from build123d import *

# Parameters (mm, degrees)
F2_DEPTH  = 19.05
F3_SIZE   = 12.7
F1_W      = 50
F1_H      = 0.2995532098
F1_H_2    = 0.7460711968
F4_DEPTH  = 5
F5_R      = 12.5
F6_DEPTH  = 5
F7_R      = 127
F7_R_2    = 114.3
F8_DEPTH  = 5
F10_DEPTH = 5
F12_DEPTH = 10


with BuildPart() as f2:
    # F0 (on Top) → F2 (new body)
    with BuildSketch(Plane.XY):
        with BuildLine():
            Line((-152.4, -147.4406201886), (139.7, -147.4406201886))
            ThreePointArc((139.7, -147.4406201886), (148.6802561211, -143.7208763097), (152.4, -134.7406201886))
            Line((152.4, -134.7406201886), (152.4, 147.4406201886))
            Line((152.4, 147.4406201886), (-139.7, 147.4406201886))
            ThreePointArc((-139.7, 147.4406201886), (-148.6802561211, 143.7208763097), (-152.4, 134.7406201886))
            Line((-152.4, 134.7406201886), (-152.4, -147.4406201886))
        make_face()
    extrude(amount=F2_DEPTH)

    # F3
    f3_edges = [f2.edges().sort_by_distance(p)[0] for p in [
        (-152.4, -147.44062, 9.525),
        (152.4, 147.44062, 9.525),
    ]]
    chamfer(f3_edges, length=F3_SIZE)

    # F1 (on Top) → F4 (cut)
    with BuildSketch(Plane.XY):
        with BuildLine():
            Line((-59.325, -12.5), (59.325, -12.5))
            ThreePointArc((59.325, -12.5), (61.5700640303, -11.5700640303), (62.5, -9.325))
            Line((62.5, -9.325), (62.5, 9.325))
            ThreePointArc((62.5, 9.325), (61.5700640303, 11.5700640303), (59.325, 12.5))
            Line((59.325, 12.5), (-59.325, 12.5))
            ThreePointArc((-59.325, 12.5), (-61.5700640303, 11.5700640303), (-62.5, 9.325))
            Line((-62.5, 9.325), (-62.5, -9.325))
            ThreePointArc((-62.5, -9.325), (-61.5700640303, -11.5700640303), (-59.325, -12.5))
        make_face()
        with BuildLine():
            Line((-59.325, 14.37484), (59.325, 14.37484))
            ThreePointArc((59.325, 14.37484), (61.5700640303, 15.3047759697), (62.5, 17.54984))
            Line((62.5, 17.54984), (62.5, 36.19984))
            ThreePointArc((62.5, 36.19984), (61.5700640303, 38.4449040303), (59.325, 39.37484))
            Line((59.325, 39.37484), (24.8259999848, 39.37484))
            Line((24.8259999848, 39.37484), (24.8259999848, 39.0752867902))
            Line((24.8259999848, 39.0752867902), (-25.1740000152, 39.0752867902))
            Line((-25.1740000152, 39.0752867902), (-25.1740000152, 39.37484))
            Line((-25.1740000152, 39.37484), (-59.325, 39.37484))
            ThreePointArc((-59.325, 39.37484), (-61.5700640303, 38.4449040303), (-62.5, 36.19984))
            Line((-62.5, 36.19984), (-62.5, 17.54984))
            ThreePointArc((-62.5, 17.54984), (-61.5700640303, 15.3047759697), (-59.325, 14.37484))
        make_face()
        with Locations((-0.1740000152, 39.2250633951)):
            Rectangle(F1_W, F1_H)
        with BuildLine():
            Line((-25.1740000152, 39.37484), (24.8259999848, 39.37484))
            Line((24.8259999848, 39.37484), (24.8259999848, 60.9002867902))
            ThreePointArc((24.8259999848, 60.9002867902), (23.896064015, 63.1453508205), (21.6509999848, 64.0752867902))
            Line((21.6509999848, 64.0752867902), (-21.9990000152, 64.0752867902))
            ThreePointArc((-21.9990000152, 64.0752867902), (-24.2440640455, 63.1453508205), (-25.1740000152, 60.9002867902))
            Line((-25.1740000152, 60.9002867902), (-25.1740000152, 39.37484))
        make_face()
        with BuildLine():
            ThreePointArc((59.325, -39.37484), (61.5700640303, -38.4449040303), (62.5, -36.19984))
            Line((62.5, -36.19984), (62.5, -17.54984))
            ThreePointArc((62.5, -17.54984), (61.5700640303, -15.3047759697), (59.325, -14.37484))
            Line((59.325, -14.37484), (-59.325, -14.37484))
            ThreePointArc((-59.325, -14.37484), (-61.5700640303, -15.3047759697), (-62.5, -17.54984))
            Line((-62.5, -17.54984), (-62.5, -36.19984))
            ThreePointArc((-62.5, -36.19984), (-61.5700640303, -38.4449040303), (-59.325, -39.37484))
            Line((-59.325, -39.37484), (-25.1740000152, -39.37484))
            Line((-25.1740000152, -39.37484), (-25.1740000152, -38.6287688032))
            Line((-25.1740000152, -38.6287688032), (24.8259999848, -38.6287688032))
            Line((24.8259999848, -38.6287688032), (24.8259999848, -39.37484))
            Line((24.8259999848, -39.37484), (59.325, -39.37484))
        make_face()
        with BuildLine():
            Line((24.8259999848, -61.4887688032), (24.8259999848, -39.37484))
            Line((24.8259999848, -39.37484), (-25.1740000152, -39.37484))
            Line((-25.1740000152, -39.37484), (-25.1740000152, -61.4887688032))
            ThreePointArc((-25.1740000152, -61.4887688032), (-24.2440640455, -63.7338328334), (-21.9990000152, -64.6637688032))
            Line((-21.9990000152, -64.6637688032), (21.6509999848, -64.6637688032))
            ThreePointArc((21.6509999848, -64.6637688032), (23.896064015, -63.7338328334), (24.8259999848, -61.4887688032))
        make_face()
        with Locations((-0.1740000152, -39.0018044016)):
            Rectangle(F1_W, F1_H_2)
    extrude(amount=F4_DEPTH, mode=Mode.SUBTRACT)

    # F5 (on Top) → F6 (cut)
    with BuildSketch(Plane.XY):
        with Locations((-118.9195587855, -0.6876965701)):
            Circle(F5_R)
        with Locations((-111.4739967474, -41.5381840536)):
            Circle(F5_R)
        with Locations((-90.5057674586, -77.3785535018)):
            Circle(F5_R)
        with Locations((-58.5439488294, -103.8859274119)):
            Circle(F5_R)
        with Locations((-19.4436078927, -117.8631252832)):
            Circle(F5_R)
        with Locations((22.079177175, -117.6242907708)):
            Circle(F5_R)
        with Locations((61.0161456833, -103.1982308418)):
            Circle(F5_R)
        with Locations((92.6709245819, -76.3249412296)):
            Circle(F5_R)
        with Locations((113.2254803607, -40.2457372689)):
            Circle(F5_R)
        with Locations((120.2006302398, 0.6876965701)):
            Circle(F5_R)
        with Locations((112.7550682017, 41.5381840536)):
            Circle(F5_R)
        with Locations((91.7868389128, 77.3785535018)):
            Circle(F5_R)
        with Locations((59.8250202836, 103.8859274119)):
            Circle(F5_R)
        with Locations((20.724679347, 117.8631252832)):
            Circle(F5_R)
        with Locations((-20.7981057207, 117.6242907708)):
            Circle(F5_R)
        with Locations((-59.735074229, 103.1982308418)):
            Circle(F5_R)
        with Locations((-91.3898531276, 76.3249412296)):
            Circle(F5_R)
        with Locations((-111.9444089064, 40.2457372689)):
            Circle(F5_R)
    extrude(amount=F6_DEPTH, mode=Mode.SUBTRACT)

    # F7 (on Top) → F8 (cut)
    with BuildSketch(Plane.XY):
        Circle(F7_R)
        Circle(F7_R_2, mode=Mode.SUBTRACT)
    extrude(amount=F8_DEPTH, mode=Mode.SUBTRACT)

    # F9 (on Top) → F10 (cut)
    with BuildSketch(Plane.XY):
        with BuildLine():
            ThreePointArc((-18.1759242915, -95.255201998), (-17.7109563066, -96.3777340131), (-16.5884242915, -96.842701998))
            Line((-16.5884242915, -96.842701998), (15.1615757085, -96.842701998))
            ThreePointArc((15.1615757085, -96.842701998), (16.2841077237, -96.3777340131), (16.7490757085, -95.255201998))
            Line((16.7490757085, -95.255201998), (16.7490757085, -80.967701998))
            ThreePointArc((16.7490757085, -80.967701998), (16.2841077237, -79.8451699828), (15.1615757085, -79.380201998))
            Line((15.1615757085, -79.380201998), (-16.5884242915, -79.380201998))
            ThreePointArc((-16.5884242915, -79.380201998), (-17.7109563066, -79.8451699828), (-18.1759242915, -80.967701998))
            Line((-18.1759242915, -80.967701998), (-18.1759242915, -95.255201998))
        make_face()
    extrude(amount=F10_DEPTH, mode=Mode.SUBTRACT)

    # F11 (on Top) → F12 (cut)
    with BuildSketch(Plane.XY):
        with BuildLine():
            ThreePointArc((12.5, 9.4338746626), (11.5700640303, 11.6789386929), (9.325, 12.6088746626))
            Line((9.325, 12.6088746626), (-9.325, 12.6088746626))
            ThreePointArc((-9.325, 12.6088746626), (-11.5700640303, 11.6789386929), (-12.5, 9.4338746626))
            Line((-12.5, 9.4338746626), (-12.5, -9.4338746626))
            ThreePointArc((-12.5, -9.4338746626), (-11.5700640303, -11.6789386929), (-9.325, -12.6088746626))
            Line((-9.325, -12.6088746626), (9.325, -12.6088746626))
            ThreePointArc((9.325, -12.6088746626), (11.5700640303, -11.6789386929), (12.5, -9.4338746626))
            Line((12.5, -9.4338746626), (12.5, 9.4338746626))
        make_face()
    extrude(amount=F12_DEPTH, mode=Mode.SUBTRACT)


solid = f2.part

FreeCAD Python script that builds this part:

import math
import FreeCAD as App
import Part
import Sketcher
Q = App.Units.Quantity


def edges_at(feature, points):
    """Names of the edges that pass closest to the given points."""
    edges = feature.Shape.Edges
    near = lambda p: min(range(len(edges)), key=lambda i: edges[i].distToShape(Part.Vertex(*p))[0])
    return sorted({f"Edge{near(p) + 1}" for p in points})

doc = App.newDocument("Part")
body = doc.addObject("PartDesign::Body", "Body")

sketch1 = body.newObject("Sketcher::SketchObject", "Sketch")
sketch1.AttachmentSupport = (doc.getObject("XY_Plane"), [""])
sketch1.MapMode = "FlatFace"
sketch1.addGeometry([
    Part.LineSegment(App.Vector(-152, -147, 0), App.Vector(140, -147, 0)),
    Part.ArcOfCircle(Part.Circle(App.Vector(140, -135, 0), App.Vector(0, 0, 1), 13), math.radians(-90), math.radians(0)),
    Part.LineSegment(App.Vector(152, -135, 0), App.Vector(152, 147, 0)),
    Part.LineSegment(App.Vector(152, 147, 0), App.Vector(-140, 147, 0)),
    Part.ArcOfCircle(Part.Circle(App.Vector(-140, 135, 0), App.Vector(0, 0, 1), 13), math.radians(90), math.radians(180)),
    Part.LineSegment(App.Vector(-152, 135, 0), App.Vector(-152, -147, 0)),
], False)
sketch1.addConstraint([
    Sketcher.Constraint("Tangent", 0, 2, 1, 1),
    Sketcher.Constraint("Tangent", 1, 2, 2, 1),
    Sketcher.Constraint("Coincident", 2, 2, 3, 1),
    Sketcher.Constraint("Tangent", 3, 2, 4, 1),
    Sketcher.Constraint("Tangent", 4, 2, 5, 1),
    Sketcher.Constraint("Coincident", 5, 2, 0, 1),
    Sketcher.Constraint("Horizontal", 0),
    Sketcher.Constraint("Vertical", 2),
    Sketcher.Constraint("Horizontal", 3),
    Sketcher.Constraint("Vertical", 5),
    Sketcher.Constraint("Equal", 1, 4),
    Sketcher.Constraint("Symmetric", 1, 3, 4, 3, -1, 1),
    Sketcher.Constraint("Radius", 1, Q("0.5 in")),
    Sketcher.Constraint("DistanceX", 0, 1, 0, 2, Q("11.5 in")),
    Sketcher.Constraint("DistanceY", 2, 1, 2, 2, 282.18124),
])
pad1 = body.newObject("PartDesign::Pad", "Pad")
pad1.Profile = sketch1
pad1.Length = Q("0.75 in")
doc.recompute()

chamfer = body.newObject("PartDesign::Chamfer", "Chamfer")
chamfer.Base = (pad1, edges_at(pad1, [(-152.4, -147.441, 9.525), (152.4, 147.441, 9.525)]))
chamfer.Size = Q("0.5 in")

sketch2 = body.newObject("Sketcher::SketchObject", "Sketch001")
sketch2.AttachmentSupport = (doc.getObject("XY_Plane"), [""])
sketch2.MapMode = "FlatFace"
sketch2.addGeometry([
    Part.LineSegment(App.Vector(-59.3, -12.5, 0), App.Vector(59.3, -12.5, 0)),
    Part.ArcOfCircle(Part.Circle(App.Vector(59.3, -9.3, 0), App.Vector(0, 0, 1), 3.2), math.radians(-90), math.radians(0)),
    Part.LineSegment(App.Vector(62.5, -9.3, 0), App.Vector(62.5, 9.3, 0)),
    Part.ArcOfCircle(Part.Circle(App.Vector(59.3, 9.3, 0), App.Vector(0, 0, 1), 3.2), math.radians(0), math.radians(90)),
    Part.LineSegment(App.Vector(59.3, 12.5, 0), App.Vector(-59.3, 12.5, 0)),
    Part.ArcOfCircle(Part.Circle(App.Vector(-59.3, 9.3, 0), App.Vector(0, 0, 1), 3.2), math.radians(90), math.radians(180)),
    Part.LineSegment(App.Vector(-62.5, 9.3, 0), App.Vector(-62.5, -9.3, 0)),
    Part.ArcOfCircle(Part.Circle(App.Vector(-59.3, -9.3, 0), App.Vector(0, 0, 1), 3.2), math.radians(180), math.radians(270)),
    Part.LineSegment(App.Vector(-59.3, 14.4, 0), App.Vector(59.3, 14.4, 0)),
    Part.ArcOfCircle(Part.Circle(App.Vector(59.3, 17.5, 0), App.Vector(0, 0, 1), 3.2), math.radians(-90), math.radians(0)),
    Part.LineSegment(App.Vector(62.5, 17.5, 0), App.Vector(62.5, 36.2, 0)),
    Part.ArcOfCircle(Part.Circle(App.Vector(59.3, 36.2, 0), App.Vector(0, 0, 1), 3.2), math.radians(0), math.radians(90)),
    Part.LineSegment(App.Vector(59.3, 39.4, 0), App.Vector(24.8, 39.4, 0)),
    Part.LineSegment(App.Vector(24.8, 39.4, 0), App.Vector(24.8, 60.9, 0)),
    Part.ArcOfCircle(Part.Circle(App.Vector(21.7, 60.9, 0), App.Vector(0, 0, 1), 3.2), math.radians(0), math.radians(90)),
    Part.LineSegment(App.Vector(21.7, 64.1, 0), App.Vector(-22, 64.1, 0)),
    Part.ArcOfCircle(Part.Circle(App.Vector(-22, 60.9, 0), App.Vector(0, 0, 1), 3.2), math.radians(90), math.radians(180)),
    Part.LineSegment(App.Vector(-25.2, 60.9, 0), App.Vector(-25.2, 39.4, 0)),
    Part.LineSegment(App.Vector(-25.2, 39.4, 0), App.Vector(-59.3, 39.4, 0)),
    Part.ArcOfCircle(Part.Circle(App.Vector(-59.3, 36.2, 0), App.Vector(0, 0, 1), 3.2), math.radians(90), math.radians(180)),
    Part.LineSegment(App.Vector(-62.5, 36.2, 0), App.Vector(-62.5, 17.5, 0)),
    Part.ArcOfCircle(Part.Circle(App.Vector(-59.3, 17.5, 0), App.Vector(0, 0, 1), 3.2), math.radians(180), math.radians(270)),
    Part.ArcOfCircle(Part.Circle(App.Vector(59.3, -36.2, 0), App.Vector(0, 0, 1), 3.2), math.radians(-90), math.radians(0)),
    Part.LineSegment(App.Vector(62.5, -36.2, 0), App.Vector(62.5, -17.5, 0)),
    Part.ArcOfCircle(Part.Circle(App.Vector(59.3, -17.5, 0), App.Vector(0, 0, 1), 3.2), math.radians(0), math.radians(90)),
    Part.LineSegment(App.Vector(59.3, -14.4, 0), App.Vector(-59.3, -14.4, 0)),
    Part.ArcOfCircle(Part.Circle(App.Vector(-59.3, -17.5, 0), App.Vector(0, 0, 1), 3.2), math.radians(90), math.radians(180)),
    Part.LineSegment(App.Vector(-62.5, -17.5, 0), App.Vector(-62.5, -36.2, 0)),
    Part.ArcOfCircle(Part.Circle(App.Vector(-59.3, -36.2, 0), App.Vector(0, 0, 1), 3.2), math.radians(180), math.radians(270)),
    Part.LineSegment(App.Vector(-59.3, -39.4, 0), App.Vector(-25.2, -39.4, 0)),
    Part.LineSegment(App.Vector(-25.2, -39.4, 0), App.Vector(-25.2, -61.5, 0)),
    Part.ArcOfCircle(Part.Circle(App.Vector(-22, -61.5, 0), App.Vector(0, 0, 1), 3.2), math.radians(180), math.radians(270)),
    Part.LineSegment(App.Vector(-22, -64.7, 0), App.Vector(21.7, -64.7, 0)),
    Part.ArcOfCircle(Part.Circle(App.Vector(21.7, -61.5, 0), App.Vector(0, 0, 1), 3.2), math.radians(-90), math.radians(0)),
    Part.LineSegment(App.Vector(24.8, -61.5, 0), App.Vector(24.8, -39.4, 0)),
    Part.LineSegment(App.Vector(24.8, -39.4, 0), App.Vector(59.3, -39.4, 0)),
], False)
sketch2.addConstraint([
    Sketcher.Constraint("Tangent", 0, 2, 1, 1),
    Sketcher.Constraint("Tangent", 1, 2, 2, 1),
    Sketcher.Constraint("Tangent", 2, 2, 3, 1),
    Sketcher.Constraint("Tangent", 3, 2, 4, 1),
    Sketcher.Constraint("Tangent", 4, 2, 5, 1),
    Sketcher.Constraint("Tangent", 5, 2, 6, 1),
    Sketcher.Constraint("Tangent", 6, 2, 7, 1),
    Sketcher.Constraint("Tangent", 7, 2, 0, 1),
    Sketcher.Constraint("Tangent", 8, 2, 9, 1),
    Sketcher.Constraint("Tangent", 9, 2, 10, 1),
    Sketcher.Constraint("Tangent", 10, 2, 11, 1),
    Sketcher.Constraint("Tangent", 11, 2, 12, 1),
    Sketcher.Constraint("Coincident", 12, 2, 13, 1),
    Sketcher.Constraint("Tangent", 13, 2, 14, 1),
    Sketcher.Constraint("Tangent", 14, 2, 15, 1),
    Sketcher.Constraint("Tangent", 15, 2, 16, 1),
    Sketcher.Constraint("Tangent", 16, 2, 17, 1),
    Sketcher.Constraint("Coincident", 17, 2, 18, 1),
    Sketcher.Constraint("Tangent", 18, 2, 19, 1),
    Sketcher.Constraint("Tangent", 19, 2, 20, 1),
    Sketcher.Constraint("Tangent", 20, 2, 21, 1),
    Sketcher.Constraint("Tangent", 21, 2, 8, 1),
    Sketcher.Constraint("Tangent", 22, 2, 23, 1),
    Sketcher.Constraint("Tangent", 23, 2, 24, 1),
    Sketcher.Constraint("Tangent", 24, 2, 25, 1),
    Sketcher.Constraint("Tangent", 25, 2, 26, 1),
    Sketcher.Constraint("Tangent", 26, 2, 27, 1),
    Sketcher.Constraint("Tangent", 27, 2, 28, 1),
    Sketcher.Constraint("Tangent", 28, 2, 29, 1),
    Sketcher.Constraint("Coincident", 29, 2, 30, 1),
    Sketcher.Constraint("Tangent", 30, 2, 31, 1),
    Sketcher.Constraint("Tangent", 31, 2, 32, 1),
    Sketcher.Constraint("Tangent", 32, 2, 33, 1),
    Sketcher.Constraint("Tangent", 33, 2, 34, 1),
    Sketcher.Constraint("Coincident", 34, 2, 35, 1),
    Sketcher.Constraint("Tangent", 35, 2, 22, 1),
    Sketcher.Constraint("Horizontal", 0),
    Sketcher.Constraint("Vertical", 2),
    Sketcher.Constraint("Horizontal", 4),
    Sketcher.Constraint("Vertical", 6),
    Sketcher.Constraint("Horizontal", 8),
    Sketcher.Constraint("Vertical", 10),
    Sketcher.Constraint("Horizontal", 12),
    Sketcher.Constraint("Vertical", 13),
    Sketcher.Constraint("Horizontal", 15),
    Sketcher.Constraint("Vertical", 17),
    Sketcher.Constraint("Horizontal", 18),
    Sketcher.Constraint("Vertical", 20),
    Sketcher.Constraint("Vertical", 23),
    Sketcher.Constraint("Horizontal", 25),
    Sketcher.Constraint("Vertical", 27),
    Sketcher.Constraint("Horizontal", 29),
    Sketcher.Constraint("Vertical", 30),
    Sketcher.Constraint("Horizontal", 32),
    Sketcher.Constraint("Vertical", 34),
    Sketcher.Constraint("Horizontal", 35),
    Sketcher.Constraint("Equal", 1, 3),
    Sketcher.Constraint("Equal", 3, 5),
    Sketcher.Constraint("Equal", 5, 7),
    Sketcher.Constraint("Equal", 7, 9),
    Sketcher.Constraint("Equal", 9, 11),
    Sketcher.Constraint("Equal", 11, 14),
    Sketcher.Constraint("Equal", 14, 16),
    Sketcher.Constraint("Equal", 16, 19),
    Sketcher.Constraint("Equal", 19, 21),
    Sketcher.Constraint("Equal", 21, 22),
    Sketcher.Constraint("Equal", 22, 24),
    Sketcher.Constraint("Equal", 24, 26),
    Sketcher.Constraint("Equal", 26, 28),
    Sketcher.Constraint("Equal", 28, 31),
    Sketcher.Constraint("Equal", 31, 33),
    Sketcher.Constraint("Symmetric", 1, 3, 5, 3, -1, 1),
    Sketcher.Constraint("Symmetric", 19, 3, 22, 3, -1, 1),
    Sketcher.Constraint("Symmetric", 9, 3, 26, 3, -1, 1),
    Sketcher.Constraint("Symmetric", 11, 3, 19, 3, -2),
    Sketcher.Constraint("Symmetric", 17, 2, 29, 2, -1),
    Sketcher.Constraint("Vertical", 3, 3, 9, 3),
    Sketcher.Constraint("Vertical", 14, 3, 33, 3),
    Sketcher.Constraint("Equal", 6, 10),
    Sketcher.Constraint("Radius", 1, Q("0.125 in")),
    Sketcher.Constraint("DistanceX", 0, 1, 0, 2, 118.65),
    Sketcher.Constraint("DistanceX", 12, 2, 12, 1, 34.499),
    Sketcher.Constraint("DistanceX", 15, 2, 15, 1, 43.65),
    Sketcher.Constraint("DistanceY", 2, 1, 2, 2, 18.65),
    Sketcher.Constraint("DistanceY", 30, 2, 30, 1, 22.113929),
    Sketcher.Constraint("DistanceY", 13, 1, 13, 2, 21.525447),
    Sketcher.Constraint("DistanceY", -1, 1, 9, 3, 17.54984),
])
pocket1 = body.newObject("PartDesign::Pocket", "Pocket")
pocket1.Profile = sketch2
pocket1.Length = 5
pocket1.Reversed = True

sketch3 = body.newObject("Sketcher::SketchObject", "Sketch002")
sketch3.AttachmentSupport = (doc.getObject("XY_Plane"), [""])
sketch3.MapMode = "FlatFace"
sketch3.addGeometry([
    Part.Circle(App.Vector(-119, -1, 0), App.Vector(0, 0, 1), 12),
    Part.Circle(App.Vector(-111, -42, 0), App.Vector(0, 0, 1), 12),
    Part.Circle(App.Vector(-91, -77, 0), App.Vector(0, 0, 1), 12),
    Part.Circle(App.Vector(-59, -104, 0), App.Vector(0, 0, 1), 12),
    Part.Circle(App.Vector(-19, -118, 0), App.Vector(0, 0, 1), 12),
    Part.Circle(App.Vector(22, -118, 0), App.Vector(0, 0, 1), 12),
    Part.Circle(App.Vector(61, -103, 0), App.Vector(0, 0, 1), 12),
    Part.Circle(App.Vector(93, -76, 0), App.Vector(0, 0, 1), 12),
    Part.Circle(App.Vector(113, -40, 0), App.Vector(0, 0, 1), 12),
    Part.Circle(App.Vector(120, 1, 0), App.Vector(0, 0, 1), 12),
    Part.Circle(App.Vector(113, 42, 0), App.Vector(0, 0, 1), 12),
    Part.Circle(App.Vector(92, 77, 0), App.Vector(0, 0, 1), 12),
    Part.Circle(App.Vector(60, 104, 0), App.Vector(0, 0, 1), 12),
    Part.Circle(App.Vector(21, 118, 0), App.Vector(0, 0, 1), 12),
    Part.Circle(App.Vector(-21, 118, 0), App.Vector(0, 0, 1), 12),
    Part.Circle(App.Vector(-60, 103, 0), App.Vector(0, 0, 1), 12),
    Part.Circle(App.Vector(-91, 76, 0), App.Vector(0, 0, 1), 12),
    Part.Circle(App.Vector(-112, 40, 0), App.Vector(0, 0, 1), 12),
], False)
sketch3.addConstraint([
    Sketcher.Constraint("Equal", 0, 1),
    Sketcher.Constraint("Equal", 1, 2),
    Sketcher.Constraint("Equal", 2, 3),
    Sketcher.Constraint("Equal", 3, 4),
    Sketcher.Constraint("Equal", 4, 5),
    Sketcher.Constraint("Equal", 5, 6),
    Sketcher.Constraint("Equal", 6, 7),
    Sketcher.Constraint("Equal", 7, 8),
    Sketcher.Constraint("Equal", 8, 9),
    Sketcher.Constraint("Equal", 9, 10),
    Sketcher.Constraint("Equal", 10, 11),
    Sketcher.Constraint("Equal", 11, 12),
    Sketcher.Constraint("Equal", 12, 13),
    Sketcher.Constraint("Equal", 13, 14),
    Sketcher.Constraint("Equal", 14, 15),
    Sketcher.Constraint("Equal", 15, 16),
    Sketcher.Constraint("Equal", 16, 17),
    Sketcher.Constraint("Diameter", 0, 25.0),
    Sketcher.Constraint("DistanceX", 13, 3, 8, 3, 92.500801),
    Sketcher.Constraint("DistanceX", 0, 3, -1, 1, 118.919559),
    Sketcher.Constraint("DistanceX", 3, 3, -1, 1, 58.543949),
    Sketcher.Constraint("DistanceY", 5, 3, -1, 1, 117.624291),
    Sketcher.Constraint("DistanceY", 6, 3, -1, 1, 103.198231),
    Sketcher.Constraint("DistanceY", 7, 3, -1, 1, 76.324941),
    Sketcher.Constraint("DistanceX", -1, 1, 8, 3, 113.22548),
    Sketcher.Constraint("DistanceX", -1, 1, 9, 3, 120.20063),
    Sketcher.Constraint("DistanceX", -1, 1, 10, 3, 112.755068),
    Sketcher.Constraint("DistanceX", -1, 1, 11, 3, 91.786839),
    Sketcher.Constraint("DistanceX", -1, 1, 12, 3, 59.82502),
    Sketcher.Constraint("DistanceY", -1, 1, 14, 3, 117.624291),
    Sketcher.Constraint("DistanceY", -1, 1, 15, 3, 103.198231),
    Sketcher.Constraint("DistanceY", -1, 1, 16, 3, 76.324941),
    Sketcher.Constraint("DistanceX", 17, 3, -1, 1, 111.944409),
    Sketcher.Constraint("DistanceX", 1, 3, 2, 3, 20.968229),
    Sketcher.Constraint("DistanceY", 2, 3, 1, 3, 35.840369),
    Sketcher.Constraint("DistanceX", 0, 3, 2, 3, 28.413791),
    Sketcher.Constraint("DistanceY", 3, 3, 0, 3, 103.198231),
    Sketcher.Constraint("DistanceX", 3, 3, 4, 3, 39.100341),
    Sketcher.Constraint("DistanceY", 4, 3, 2, 3, 40.484572),
    Sketcher.Constraint("DistanceY", 4, 3, 0, 3, 117.175429),
    Sketcher.Constraint("DistanceX", 5, 3, 6, 3, 38.936969),
    Sketcher.Constraint("DistanceX", 6, 3, 7, 3, 31.654779),
    Sketcher.Constraint("DistanceY", 4, 3, 8, 3, 77.617388),
    Sketcher.Constraint("DistanceY", 4, 3, 9, 3, 118.550822),
    Sketcher.Constraint("DistanceY", 8, 3, 10, 3, 81.783921),
    Sketcher.Constraint("DistanceX", 5, 3, 10, 3, 90.675891),
    Sketcher.Constraint("DistanceY", 10, 3, 11, 3, 35.840369),
    Sketcher.Constraint("DistanceY", 9, 3, 12, 3, 103.198231),
    Sketcher.Constraint("DistanceY", 7, 3, 12, 3, 180.210869),
    Sketcher.Constraint("DistanceY", 11, 3, 13, 3, 40.484572),
    Sketcher.Constraint("DistanceX", 15, 3, 14, 3, 38.936969),
    Sketcher.Constraint("DistanceX", 16, 3, 15, 3, 31.654779),
    Sketcher.Constraint("DistanceY", 1, 3, 17, 3, 81.783921),
    Sketcher.Constraint("DistanceX", 14, 3, -1, 1, 20.798106),
])
pocket2 = body.newObject("PartDesign::Pocket", "Pocket001")
pocket2.Profile = sketch3
pocket2.Length = 5
pocket2.Reversed = True

sketch4 = body.newObject("Sketcher::SketchObject", "Sketch003")
sketch4.AttachmentSupport = (doc.getObject("XY_Plane"), [""])
sketch4.MapMode = "FlatFace"
sketch4.addGeometry([
    Part.Circle(App.Vector(0, 0, 0), App.Vector(0, 0, 1), 127),
    Part.Circle(App.Vector(0, 0, 0), App.Vector(0, 0, 1), 114),
], False)
sketch4.addConstraint([
    Sketcher.Constraint("Coincident", 0, 3, -1, 1),
    Sketcher.Constraint("Coincident", 1, 3, -1, 1),
    Sketcher.Constraint("Diameter", 0, Q("10 in")),
    Sketcher.Constraint("Diameter", 1, Q("9 in")),
])
pocket3 = body.newObject("PartDesign::Pocket", "Pocket002")
pocket3.Profile = sketch4
pocket3.Length = 5
pocket3.Reversed = True

sketch5 = body.newObject("Sketcher::SketchObject", "Sketch004")
sketch5.AttachmentSupport = (doc.getObject("XY_Plane"), [""])
sketch5.MapMode = "FlatFace"
sketch5.addGeometry([
    Part.ArcOfCircle(Part.Circle(App.Vector(-16.6, -95.3, 0), App.Vector(0, 0, 1), 1.6), math.radians(180), math.radians(270)),
    Part.LineSegment(App.Vector(-16.6, -96.8, 0), App.Vector(15.2, -96.8, 0)),
    Part.ArcOfCircle(Part.Circle(App.Vector(15.2, -95.3, 0), App.Vector(0, 0, 1), 1.6), math.radians(-90), math.radians(0)),
    Part.LineSegment(App.Vector(16.7, -95.3, 0), App.Vector(16.7, -81, 0)),
    Part.ArcOfCircle(Part.Circle(App.Vector(15.2, -81, 0), App.Vector(0, 0, 1), 1.6), math.radians(0), math.radians(90)),
    Part.LineSegment(App.Vector(15.2, -79.4, 0), App.Vector(-16.6, -79.4, 0)),
    Part.ArcOfCircle(Part.Circle(App.Vector(-16.6, -81, 0), App.Vector(0, 0, 1), 1.6), math.radians(90), math.radians(180)),
    Part.LineSegment(App.Vector(-18.2, -81, 0), App.Vector(-18.2, -95.3, 0)),
], False)
sketch5.addConstraint([
    Sketcher.Constraint("Tangent", 0, 2, 1, 1),
    Sketcher.Constraint("Tangent", 1, 2, 2, 1),
    Sketcher.Constraint("Tangent", 2, 2, 3, 1),
    Sketcher.Constraint("Tangent", 3, 2, 4, 1),
    Sketcher.Constraint("Tangent", 4, 2, 5, 1),
    Sketcher.Constraint("Tangent", 5, 2, 6, 1),
    Sketcher.Constraint("Tangent", 6, 2, 7, 1),
    Sketcher.Constraint("Tangent", 7, 2, 0, 1),
    Sketcher.Constraint("Horizontal", 1),
    Sketcher.Constraint("Vertical", 3),
    Sketcher.Constraint("Horizontal", 5),
    Sketcher.Constraint("Vertical", 7),
    Sketcher.Constraint("Equal", 0, 2),
    Sketcher.Constraint("Equal", 2, 4),
    Sketcher.Constraint("Equal", 4, 6),
    Sketcher.Constraint("Radius", 0, Q("0.0625 in")),
    Sketcher.Constraint("DistanceX", 1, 1, 1, 2, Q("1.25 in")),
    Sketcher.Constraint("DistanceY", 3, 1, 3, 2, Q("0.5625 in")),
    Sketcher.Constraint("DistanceY", 0, 3, -1, 1, 95.255202),
    Sketcher.Constraint("DistanceX", 0, 3, -1, 1, 16.588424),
])
pocket4 = body.newObject("PartDesign::Pocket", "Pocket003")
pocket4.Profile = sketch5
pocket4.Length = 5
pocket4.Reversed = True

sketch6 = body.newObject("Sketcher::SketchObject", "Sketch005")
sketch6.AttachmentSupport = (doc.getObject("XY_Plane"), [""])
sketch6.MapMode = "FlatFace"
sketch6.addGeometry([
    Part.ArcOfCircle(Part.Circle(App.Vector(9.3, 9.4, 0), App.Vector(0, 0, 1), 3.2), math.radians(0), math.radians(90)),
    Part.LineSegment(App.Vector(9.3, 12.6, 0), App.Vector(-9.3, 12.6, 0)),
    Part.ArcOfCircle(Part.Circle(App.Vector(-9.3, 9.4, 0), App.Vector(0, 0, 1), 3.2), math.radians(90), math.radians(180)),
    Part.LineSegment(App.Vector(-12.5, 9.4, 0), App.Vector(-12.5, -9.4, 0)),
    Part.ArcOfCircle(Part.Circle(App.Vector(-9.3, -9.4, 0), App.Vector(0, 0, 1), 3.2), math.radians(180), math.radians(270)),
    Part.LineSegment(App.Vector(-9.3, -12.6, 0), App.Vector(9.3, -12.6, 0)),
    Part.ArcOfCircle(Part.Circle(App.Vector(9.3, -9.4, 0), App.Vector(0, 0, 1), 3.2), math.radians(-90), math.radians(0)),
    Part.LineSegment(App.Vector(12.5, -9.4, 0), App.Vector(12.5, 9.4, 0)),
], False)
sketch6.addConstraint([
    Sketcher.Constraint("Tangent", 0, 2, 1, 1),
    Sketcher.Constraint("Tangent", 1, 2, 2, 1),
    Sketcher.Constraint("Tangent", 2, 2, 3, 1),
    Sketcher.Constraint("Tangent", 3, 2, 4, 1),
    Sketcher.Constraint("Tangent", 4, 2, 5, 1),
    Sketcher.Constraint("Tangent", 5, 2, 6, 1),
    Sketcher.Constraint("Tangent", 6, 2, 7, 1),
    Sketcher.Constraint("Tangent", 7, 2, 0, 1),
    Sketcher.Constraint("Horizontal", 1),
    Sketcher.Constraint("Vertical", 3),
    Sketcher.Constraint("Horizontal", 5),
    Sketcher.Constraint("Vertical", 7),
    Sketcher.Constraint("Equal", 0, 2),
    Sketcher.Constraint("Equal", 2, 4),
    Sketcher.Constraint("Equal", 4, 6),
    Sketcher.Constraint("Symmetric", 0, 3, 4, 3, -1, 1),
    Sketcher.Constraint("Radius", 0, Q("0.125 in")),
    Sketcher.Constraint("DistanceX", 1, 2, 1, 1, 18.65),
    Sketcher.Constraint("DistanceY", 3, 2, 3, 1, 18.867749),
])
pocket5 = body.newObject("PartDesign::Pocket", "Pocket004")
pocket5.Profile = sketch6
pocket5.Length = 10
pocket5.Reversed = True

doc.recompute()
